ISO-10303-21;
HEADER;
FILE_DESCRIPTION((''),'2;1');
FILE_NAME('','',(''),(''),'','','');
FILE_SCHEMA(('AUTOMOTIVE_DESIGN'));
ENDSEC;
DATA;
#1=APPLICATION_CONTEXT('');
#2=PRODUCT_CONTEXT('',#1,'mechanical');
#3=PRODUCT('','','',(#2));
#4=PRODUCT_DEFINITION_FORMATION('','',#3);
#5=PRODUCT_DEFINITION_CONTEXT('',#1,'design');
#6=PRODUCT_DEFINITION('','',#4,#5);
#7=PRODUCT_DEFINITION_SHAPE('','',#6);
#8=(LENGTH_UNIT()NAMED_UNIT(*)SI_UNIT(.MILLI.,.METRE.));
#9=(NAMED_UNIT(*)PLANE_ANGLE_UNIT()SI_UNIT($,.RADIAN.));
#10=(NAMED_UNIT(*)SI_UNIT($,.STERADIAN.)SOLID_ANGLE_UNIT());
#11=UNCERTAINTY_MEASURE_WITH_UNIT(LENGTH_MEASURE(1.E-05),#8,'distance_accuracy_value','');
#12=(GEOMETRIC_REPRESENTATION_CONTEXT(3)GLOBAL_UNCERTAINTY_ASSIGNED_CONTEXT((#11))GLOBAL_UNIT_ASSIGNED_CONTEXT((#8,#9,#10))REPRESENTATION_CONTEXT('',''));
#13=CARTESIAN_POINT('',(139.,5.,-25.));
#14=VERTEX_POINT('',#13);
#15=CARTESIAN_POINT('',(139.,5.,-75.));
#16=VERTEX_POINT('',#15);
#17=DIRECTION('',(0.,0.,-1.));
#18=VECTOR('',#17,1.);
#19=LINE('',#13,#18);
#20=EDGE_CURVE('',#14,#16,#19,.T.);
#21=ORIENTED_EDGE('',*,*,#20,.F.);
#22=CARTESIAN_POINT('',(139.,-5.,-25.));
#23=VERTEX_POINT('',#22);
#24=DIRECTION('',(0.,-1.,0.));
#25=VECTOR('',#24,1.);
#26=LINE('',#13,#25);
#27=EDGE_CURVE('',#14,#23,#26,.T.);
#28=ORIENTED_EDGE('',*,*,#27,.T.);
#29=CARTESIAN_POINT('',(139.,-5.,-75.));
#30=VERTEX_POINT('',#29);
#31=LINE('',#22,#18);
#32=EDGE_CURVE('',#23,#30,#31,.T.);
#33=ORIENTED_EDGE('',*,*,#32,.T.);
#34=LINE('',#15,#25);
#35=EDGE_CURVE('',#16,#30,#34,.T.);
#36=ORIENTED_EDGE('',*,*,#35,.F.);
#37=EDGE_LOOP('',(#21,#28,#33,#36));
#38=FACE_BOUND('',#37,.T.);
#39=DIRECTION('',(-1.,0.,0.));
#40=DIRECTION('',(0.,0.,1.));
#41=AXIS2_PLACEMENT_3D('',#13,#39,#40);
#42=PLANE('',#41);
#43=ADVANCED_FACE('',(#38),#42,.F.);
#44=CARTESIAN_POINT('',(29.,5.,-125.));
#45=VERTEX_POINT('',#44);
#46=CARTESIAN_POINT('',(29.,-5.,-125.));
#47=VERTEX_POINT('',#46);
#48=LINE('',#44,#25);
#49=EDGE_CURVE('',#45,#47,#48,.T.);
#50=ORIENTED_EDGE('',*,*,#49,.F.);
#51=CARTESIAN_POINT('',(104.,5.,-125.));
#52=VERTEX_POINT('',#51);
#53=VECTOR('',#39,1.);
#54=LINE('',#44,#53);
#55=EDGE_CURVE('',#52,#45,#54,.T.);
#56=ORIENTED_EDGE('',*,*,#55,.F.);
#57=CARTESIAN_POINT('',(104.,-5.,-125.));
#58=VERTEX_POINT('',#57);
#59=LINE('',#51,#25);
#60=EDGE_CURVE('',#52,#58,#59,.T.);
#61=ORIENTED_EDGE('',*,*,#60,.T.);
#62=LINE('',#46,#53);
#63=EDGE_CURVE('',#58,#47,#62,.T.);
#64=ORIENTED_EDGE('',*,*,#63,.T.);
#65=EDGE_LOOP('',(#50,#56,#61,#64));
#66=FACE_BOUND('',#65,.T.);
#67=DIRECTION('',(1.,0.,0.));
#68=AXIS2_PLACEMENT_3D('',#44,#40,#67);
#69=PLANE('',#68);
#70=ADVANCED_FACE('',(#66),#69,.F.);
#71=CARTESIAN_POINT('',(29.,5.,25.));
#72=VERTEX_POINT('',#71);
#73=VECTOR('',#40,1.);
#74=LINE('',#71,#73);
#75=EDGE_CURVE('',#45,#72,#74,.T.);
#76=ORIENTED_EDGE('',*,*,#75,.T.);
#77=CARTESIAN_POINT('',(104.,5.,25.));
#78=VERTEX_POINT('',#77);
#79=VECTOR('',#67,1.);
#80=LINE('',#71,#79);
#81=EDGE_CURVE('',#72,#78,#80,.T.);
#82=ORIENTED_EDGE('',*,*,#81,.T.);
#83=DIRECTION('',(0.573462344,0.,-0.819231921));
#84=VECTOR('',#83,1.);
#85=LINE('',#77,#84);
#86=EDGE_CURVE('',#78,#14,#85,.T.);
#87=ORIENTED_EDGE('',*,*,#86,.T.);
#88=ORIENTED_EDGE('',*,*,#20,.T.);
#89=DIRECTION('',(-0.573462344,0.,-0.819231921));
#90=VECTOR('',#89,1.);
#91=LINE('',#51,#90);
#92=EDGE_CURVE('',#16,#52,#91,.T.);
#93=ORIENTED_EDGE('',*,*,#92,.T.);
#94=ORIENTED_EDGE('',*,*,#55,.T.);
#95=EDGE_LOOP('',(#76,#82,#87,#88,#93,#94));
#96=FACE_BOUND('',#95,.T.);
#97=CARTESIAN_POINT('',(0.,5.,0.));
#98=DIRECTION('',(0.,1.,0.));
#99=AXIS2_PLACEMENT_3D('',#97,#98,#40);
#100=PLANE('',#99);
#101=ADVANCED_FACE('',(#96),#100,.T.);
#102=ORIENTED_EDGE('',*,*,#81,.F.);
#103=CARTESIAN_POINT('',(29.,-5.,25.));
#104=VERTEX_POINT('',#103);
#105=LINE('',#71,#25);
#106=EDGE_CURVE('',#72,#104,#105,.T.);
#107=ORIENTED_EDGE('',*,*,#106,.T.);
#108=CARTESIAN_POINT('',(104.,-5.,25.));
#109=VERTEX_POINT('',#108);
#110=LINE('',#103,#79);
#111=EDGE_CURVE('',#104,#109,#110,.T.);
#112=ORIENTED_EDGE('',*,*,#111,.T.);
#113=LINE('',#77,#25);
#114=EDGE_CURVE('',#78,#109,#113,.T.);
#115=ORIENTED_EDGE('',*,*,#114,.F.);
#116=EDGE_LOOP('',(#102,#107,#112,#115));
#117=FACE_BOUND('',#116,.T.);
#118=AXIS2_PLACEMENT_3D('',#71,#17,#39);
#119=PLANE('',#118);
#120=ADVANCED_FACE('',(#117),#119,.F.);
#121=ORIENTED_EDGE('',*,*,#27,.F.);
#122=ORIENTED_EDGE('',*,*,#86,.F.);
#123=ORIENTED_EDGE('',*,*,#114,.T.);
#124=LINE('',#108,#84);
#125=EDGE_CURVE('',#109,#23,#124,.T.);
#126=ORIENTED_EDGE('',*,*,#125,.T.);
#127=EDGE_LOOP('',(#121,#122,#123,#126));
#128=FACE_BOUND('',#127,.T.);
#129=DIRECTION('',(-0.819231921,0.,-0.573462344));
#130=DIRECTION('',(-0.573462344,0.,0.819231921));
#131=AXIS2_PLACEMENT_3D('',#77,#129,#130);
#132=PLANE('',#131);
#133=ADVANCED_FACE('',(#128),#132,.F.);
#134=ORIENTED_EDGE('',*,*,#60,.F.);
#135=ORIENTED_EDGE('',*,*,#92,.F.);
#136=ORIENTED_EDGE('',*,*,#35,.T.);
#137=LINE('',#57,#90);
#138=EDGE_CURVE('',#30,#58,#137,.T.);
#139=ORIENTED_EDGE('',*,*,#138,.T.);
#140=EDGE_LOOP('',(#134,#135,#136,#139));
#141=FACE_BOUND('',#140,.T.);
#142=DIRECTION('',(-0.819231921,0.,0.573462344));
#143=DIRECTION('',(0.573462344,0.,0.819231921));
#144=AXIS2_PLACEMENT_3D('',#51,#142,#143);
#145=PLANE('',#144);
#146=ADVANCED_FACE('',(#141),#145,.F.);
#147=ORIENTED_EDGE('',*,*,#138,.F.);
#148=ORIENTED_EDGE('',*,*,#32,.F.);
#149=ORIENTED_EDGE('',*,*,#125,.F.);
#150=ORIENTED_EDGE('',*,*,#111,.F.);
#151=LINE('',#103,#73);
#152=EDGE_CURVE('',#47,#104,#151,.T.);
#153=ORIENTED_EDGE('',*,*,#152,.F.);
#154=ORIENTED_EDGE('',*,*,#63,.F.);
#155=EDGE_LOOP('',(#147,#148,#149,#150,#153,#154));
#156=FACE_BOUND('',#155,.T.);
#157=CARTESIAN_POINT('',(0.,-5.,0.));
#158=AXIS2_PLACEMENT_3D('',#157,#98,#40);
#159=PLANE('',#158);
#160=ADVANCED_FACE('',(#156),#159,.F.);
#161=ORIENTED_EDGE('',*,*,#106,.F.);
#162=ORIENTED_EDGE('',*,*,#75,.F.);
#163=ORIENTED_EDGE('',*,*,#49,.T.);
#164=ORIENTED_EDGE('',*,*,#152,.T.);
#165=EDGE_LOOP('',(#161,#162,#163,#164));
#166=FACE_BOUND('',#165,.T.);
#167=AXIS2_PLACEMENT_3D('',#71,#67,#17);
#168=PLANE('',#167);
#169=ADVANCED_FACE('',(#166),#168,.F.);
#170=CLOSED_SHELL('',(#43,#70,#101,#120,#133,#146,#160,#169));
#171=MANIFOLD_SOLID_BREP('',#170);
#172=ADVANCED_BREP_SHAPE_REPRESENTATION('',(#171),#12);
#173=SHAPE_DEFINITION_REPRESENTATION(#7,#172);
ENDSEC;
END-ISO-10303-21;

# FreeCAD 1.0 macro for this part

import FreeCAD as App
import Part
import Sketcher

doc = App.newDocument("Part")
body = doc.addObject("PartDesign::Body", "Body")

# Sketch on XZ plane
sketch1 = doc.addObject("Sketcher::SketchObject", "Sketch")
body.addObject(sketch1)
sketch1.AttachmentSupport = (doc.XZ_Plane, [""])
sketch1.MapMode = "FlatFace"
sketch1.addGeometry(Part.LineSegment(App.Vector(29, 25, 0), App.Vector(104, 25, 0)), False)
sketch1.addGeometry(Part.LineSegment(App.Vector(104, 25, 0), App.Vector(139, -25, 0)), False)
sketch1.addGeometry(Part.LineSegment(App.Vector(139, -25, 0), App.Vector(139, -75, 0)), False)
sketch1.addGeometry(Part.LineSegment(App.Vector(139, -75, 0), App.Vector(104, -125, 0)), False)
sketch1.addGeometry(Part.LineSegment(App.Vector(104, -125, 0), App.Vector(29, -125, 0)), False)
sketch1.addGeometry(Part.LineSegment(App.Vector(29, -125, 0), App.Vector(29, 25, 0)), False)
sketch1.addConstraint(Sketcher.Constraint("Coincident", 0, 2, 1, 1))
sketch1.addConstraint(Sketcher.Constraint("Coincident", 1, 2, 2, 1))
sketch1.addConstraint(Sketcher.Constraint("Coincident", 2, 2, 3, 1))
sketch1.addConstraint(Sketcher.Constraint("Coincident", 3, 2, 4, 1))
sketch1.addConstraint(Sketcher.Constraint("Coincident", 4, 2, 5, 1))
sketch1.addConstraint(Sketcher.Constraint("Coincident", 5, 2, 0, 1))
sketch1.addConstraint(Sketcher.Constraint("Horizontal", 0))
sketch1.addConstraint(Sketcher.Constraint("Vertical", 2))
sketch1.addConstraint(Sketcher.Constraint("Horizontal", 4))
sketch1.addConstraint(Sketcher.Constraint("Vertical", 5))
sketch1.addConstraint(Sketcher.Constraint("Vertical", 0, 2, 3, 2))
sketch1.addConstraint(Sketcher.Constraint("Equal", 1, 3))
sketch1.addConstraint(Sketcher.Constraint("DistanceX", 0, 1, 0, 2, 75.0))
sketch1.addConstraint(Sketcher.Constraint("DistanceY", 2, 2, 2, 1, 50.0))
sketch1.addConstraint(Sketcher.Constraint("DistanceY", 5, 1, 5, 2, 150.0))
sketch1.addConstraint(Sketcher.Constraint("DistanceX", -1, 1, 0, 2, 104.0))
sketch1.addConstraint(Sketcher.Constraint("DistanceY", -1, 1, 0, 2, 25.0))
sketch1.addConstraint(Sketcher.Constraint("DistanceX", -1, 1, 1, 2, 139.0))
pad1 = doc.addObject("PartDesign::Pad", "Pad")
body.addObject(pad1)
pad1.Profile = sketch1
pad1.Length = 10
pad1.Midplane = True

doc.recompute()
